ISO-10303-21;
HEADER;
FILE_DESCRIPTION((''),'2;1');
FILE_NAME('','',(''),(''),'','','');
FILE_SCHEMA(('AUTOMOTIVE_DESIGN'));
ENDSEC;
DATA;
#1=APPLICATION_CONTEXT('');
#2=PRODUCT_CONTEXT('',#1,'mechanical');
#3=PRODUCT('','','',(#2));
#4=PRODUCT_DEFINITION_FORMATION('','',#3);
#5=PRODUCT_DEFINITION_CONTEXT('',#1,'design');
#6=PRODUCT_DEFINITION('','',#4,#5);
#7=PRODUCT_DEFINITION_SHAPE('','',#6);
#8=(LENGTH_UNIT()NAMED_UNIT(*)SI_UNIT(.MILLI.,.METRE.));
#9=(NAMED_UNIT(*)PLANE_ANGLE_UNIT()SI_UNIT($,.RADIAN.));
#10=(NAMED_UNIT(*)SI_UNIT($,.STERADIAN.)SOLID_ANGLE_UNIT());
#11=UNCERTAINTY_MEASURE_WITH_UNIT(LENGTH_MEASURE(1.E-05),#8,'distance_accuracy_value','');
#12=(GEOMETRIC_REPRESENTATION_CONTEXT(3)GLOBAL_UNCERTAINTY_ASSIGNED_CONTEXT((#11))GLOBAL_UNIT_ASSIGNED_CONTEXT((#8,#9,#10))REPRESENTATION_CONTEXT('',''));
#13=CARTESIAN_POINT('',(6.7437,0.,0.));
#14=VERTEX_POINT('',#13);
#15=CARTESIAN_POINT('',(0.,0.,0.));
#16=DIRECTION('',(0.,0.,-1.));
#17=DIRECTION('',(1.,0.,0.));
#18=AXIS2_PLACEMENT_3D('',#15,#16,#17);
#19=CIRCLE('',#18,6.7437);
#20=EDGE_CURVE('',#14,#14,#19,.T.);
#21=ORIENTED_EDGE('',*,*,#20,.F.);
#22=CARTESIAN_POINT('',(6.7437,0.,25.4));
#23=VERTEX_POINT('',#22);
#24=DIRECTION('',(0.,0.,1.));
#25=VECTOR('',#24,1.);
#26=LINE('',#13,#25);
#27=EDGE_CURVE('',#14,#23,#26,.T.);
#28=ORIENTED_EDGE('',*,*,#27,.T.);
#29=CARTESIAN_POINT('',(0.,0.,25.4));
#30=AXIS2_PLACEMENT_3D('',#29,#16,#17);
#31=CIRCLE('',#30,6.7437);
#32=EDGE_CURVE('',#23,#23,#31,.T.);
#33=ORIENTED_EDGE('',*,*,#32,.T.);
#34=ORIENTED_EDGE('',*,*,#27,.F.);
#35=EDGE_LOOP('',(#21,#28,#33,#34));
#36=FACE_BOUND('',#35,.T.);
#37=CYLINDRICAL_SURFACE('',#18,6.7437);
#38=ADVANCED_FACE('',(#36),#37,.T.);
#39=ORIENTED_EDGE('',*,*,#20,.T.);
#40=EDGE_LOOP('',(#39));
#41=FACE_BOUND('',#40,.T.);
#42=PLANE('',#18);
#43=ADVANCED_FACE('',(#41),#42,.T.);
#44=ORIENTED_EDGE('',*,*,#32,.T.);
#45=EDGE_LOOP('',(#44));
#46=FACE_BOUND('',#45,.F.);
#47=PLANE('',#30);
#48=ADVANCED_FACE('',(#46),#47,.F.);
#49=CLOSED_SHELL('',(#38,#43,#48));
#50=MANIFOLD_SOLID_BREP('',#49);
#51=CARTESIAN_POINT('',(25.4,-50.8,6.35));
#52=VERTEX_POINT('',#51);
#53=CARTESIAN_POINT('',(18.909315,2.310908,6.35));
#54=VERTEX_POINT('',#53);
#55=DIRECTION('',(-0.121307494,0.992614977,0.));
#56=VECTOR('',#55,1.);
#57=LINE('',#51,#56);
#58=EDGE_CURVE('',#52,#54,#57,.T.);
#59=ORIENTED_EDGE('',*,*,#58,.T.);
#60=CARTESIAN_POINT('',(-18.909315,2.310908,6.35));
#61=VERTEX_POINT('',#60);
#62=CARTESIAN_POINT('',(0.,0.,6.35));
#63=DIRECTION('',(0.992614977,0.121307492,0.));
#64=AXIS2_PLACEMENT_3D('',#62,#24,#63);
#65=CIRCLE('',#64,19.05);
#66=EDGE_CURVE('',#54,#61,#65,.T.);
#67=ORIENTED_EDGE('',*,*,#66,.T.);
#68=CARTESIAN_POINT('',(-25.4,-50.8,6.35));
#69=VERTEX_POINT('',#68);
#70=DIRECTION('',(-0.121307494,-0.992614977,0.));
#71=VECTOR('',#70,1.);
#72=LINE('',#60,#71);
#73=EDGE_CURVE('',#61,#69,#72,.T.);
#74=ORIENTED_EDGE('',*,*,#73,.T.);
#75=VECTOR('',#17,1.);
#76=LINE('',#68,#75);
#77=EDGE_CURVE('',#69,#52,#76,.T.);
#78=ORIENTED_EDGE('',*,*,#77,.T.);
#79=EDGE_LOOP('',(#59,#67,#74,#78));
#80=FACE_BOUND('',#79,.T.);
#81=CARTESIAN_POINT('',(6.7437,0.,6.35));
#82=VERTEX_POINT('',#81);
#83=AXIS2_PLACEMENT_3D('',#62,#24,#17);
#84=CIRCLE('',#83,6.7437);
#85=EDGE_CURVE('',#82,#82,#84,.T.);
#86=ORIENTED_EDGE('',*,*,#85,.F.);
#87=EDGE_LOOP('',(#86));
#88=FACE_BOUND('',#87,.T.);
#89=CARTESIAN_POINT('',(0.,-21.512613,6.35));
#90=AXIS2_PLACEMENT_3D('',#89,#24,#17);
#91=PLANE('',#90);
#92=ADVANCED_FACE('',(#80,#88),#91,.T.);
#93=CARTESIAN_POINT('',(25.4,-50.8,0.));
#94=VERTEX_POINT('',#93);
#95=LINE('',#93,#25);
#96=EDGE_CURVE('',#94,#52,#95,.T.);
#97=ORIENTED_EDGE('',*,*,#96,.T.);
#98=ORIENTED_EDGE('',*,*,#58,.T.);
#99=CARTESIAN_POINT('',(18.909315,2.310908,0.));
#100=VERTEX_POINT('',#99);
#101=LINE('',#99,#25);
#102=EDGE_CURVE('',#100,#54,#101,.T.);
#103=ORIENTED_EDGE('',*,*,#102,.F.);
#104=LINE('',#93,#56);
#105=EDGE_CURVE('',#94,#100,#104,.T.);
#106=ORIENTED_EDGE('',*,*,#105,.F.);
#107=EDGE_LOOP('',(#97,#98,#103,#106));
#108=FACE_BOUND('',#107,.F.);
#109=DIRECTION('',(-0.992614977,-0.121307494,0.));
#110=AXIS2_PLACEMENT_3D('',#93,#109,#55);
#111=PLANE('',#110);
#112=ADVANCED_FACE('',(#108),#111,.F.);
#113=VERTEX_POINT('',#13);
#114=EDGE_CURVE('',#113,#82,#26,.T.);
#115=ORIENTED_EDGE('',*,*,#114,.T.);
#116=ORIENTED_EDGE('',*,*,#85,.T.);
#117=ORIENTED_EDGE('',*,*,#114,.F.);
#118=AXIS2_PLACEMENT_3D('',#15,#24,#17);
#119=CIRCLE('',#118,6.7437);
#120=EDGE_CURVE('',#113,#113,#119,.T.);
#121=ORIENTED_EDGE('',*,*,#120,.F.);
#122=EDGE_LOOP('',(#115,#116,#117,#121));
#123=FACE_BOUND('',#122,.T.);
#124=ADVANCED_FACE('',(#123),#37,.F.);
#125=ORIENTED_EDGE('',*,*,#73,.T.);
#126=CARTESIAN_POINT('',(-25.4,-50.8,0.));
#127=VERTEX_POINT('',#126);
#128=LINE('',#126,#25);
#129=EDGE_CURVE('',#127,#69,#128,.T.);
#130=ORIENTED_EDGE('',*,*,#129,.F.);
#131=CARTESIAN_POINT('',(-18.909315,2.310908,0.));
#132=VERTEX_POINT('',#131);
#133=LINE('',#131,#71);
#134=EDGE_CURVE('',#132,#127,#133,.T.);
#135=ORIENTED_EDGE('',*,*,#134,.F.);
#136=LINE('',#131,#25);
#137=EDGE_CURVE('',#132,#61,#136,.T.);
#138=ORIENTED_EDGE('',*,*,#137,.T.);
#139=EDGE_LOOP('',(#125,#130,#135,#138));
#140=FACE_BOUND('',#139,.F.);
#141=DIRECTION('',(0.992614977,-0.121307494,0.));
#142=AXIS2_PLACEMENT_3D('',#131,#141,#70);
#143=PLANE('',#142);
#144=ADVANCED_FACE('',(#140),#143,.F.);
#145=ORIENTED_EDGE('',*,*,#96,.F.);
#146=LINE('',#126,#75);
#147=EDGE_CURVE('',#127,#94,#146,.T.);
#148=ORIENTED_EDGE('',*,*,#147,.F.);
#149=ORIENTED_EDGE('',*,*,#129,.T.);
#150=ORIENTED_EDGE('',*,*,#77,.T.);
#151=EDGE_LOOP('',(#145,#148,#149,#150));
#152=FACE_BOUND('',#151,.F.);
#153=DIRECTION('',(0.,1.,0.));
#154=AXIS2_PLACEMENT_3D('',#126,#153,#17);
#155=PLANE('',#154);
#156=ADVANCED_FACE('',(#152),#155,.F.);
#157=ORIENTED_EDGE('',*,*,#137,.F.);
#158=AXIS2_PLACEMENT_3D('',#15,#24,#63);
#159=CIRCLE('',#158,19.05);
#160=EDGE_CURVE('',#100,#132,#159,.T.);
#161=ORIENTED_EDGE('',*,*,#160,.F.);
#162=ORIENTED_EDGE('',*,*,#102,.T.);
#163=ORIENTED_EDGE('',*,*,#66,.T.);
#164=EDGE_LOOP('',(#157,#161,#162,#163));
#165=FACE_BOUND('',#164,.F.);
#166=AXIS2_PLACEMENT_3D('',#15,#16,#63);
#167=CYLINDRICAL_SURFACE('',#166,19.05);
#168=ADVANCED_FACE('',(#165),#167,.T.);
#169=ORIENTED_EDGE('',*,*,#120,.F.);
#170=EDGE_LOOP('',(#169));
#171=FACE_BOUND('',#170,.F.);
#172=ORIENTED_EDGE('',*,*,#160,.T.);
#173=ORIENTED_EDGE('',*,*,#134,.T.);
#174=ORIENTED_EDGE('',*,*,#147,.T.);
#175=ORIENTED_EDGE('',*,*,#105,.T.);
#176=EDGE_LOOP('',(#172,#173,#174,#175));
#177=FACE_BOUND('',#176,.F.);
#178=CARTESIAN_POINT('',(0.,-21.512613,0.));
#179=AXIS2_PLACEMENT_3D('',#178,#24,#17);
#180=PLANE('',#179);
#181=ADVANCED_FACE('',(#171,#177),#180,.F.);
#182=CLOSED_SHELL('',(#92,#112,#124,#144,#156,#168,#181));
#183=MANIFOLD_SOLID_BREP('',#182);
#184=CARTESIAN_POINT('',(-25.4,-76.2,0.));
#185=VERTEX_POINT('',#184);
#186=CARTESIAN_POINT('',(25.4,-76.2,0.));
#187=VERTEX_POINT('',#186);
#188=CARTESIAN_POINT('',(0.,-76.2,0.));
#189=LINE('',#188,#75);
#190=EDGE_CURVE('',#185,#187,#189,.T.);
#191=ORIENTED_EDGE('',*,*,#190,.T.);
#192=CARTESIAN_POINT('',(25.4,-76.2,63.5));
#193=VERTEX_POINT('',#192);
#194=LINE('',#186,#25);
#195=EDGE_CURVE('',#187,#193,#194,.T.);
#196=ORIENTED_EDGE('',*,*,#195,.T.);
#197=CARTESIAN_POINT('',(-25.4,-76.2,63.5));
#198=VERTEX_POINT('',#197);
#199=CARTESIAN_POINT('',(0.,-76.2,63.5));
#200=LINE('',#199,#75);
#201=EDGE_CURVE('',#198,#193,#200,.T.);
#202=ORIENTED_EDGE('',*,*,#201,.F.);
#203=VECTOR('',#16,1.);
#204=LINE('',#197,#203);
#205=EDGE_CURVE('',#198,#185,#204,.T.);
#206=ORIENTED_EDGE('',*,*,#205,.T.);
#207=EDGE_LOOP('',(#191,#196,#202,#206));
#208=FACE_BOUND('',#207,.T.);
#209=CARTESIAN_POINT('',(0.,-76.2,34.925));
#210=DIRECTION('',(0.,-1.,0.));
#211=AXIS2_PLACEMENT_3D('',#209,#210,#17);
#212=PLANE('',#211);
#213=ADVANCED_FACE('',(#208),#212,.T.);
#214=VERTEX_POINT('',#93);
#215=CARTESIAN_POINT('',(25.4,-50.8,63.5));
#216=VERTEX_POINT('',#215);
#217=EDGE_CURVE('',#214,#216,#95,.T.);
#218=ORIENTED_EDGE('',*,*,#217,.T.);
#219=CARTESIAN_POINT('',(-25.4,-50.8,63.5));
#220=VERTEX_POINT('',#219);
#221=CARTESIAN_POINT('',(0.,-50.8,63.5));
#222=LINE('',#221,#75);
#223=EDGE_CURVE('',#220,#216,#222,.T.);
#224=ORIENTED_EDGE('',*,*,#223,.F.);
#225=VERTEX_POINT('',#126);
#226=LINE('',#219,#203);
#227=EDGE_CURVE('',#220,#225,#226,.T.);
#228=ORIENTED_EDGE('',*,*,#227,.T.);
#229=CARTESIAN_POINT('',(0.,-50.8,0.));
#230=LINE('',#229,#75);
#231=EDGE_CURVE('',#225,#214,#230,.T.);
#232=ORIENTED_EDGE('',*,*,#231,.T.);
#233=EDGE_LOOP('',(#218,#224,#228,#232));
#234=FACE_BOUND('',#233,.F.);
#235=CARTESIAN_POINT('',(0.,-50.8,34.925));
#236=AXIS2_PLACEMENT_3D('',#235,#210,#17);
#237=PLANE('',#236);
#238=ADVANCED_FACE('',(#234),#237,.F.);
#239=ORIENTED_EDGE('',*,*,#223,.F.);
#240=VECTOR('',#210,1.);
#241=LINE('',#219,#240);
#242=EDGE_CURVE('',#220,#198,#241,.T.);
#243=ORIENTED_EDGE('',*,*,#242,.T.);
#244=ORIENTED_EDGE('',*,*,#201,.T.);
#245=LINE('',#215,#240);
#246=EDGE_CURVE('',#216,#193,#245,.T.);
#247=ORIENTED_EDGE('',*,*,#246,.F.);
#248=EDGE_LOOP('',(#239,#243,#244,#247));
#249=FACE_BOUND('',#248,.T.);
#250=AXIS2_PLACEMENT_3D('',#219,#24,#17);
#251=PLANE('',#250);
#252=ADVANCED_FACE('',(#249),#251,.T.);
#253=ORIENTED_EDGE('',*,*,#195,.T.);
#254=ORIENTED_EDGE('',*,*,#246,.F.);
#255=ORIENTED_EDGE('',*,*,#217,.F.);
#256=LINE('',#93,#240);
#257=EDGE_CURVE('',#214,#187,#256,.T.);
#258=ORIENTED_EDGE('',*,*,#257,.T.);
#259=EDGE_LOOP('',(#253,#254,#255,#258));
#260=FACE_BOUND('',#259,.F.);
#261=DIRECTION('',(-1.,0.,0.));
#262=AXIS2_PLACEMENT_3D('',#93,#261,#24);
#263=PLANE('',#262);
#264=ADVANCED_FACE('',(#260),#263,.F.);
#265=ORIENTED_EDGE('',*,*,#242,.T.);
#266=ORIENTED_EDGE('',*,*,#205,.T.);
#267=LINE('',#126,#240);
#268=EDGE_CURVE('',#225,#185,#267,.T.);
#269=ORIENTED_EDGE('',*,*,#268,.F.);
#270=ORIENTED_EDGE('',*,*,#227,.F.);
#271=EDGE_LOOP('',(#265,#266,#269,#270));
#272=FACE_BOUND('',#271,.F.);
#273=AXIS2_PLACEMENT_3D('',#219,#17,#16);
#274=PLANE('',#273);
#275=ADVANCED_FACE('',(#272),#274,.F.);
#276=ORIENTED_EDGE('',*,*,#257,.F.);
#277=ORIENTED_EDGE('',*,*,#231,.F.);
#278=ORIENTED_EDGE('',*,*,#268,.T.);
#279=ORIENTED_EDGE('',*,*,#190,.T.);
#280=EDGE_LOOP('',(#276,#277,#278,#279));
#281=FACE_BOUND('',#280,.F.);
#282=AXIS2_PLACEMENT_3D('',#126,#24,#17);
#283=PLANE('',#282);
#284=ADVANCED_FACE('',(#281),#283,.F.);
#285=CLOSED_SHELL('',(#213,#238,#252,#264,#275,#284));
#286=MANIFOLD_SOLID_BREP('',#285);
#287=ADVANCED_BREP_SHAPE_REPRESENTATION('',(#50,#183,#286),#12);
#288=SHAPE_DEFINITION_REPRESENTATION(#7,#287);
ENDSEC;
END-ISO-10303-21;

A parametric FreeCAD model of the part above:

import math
import FreeCAD as App
import Part
import Sketcher
Q = App.Units.Quantity

doc = App.newDocument("Part")
params = doc.addObject("Spreadsheet::Sheet", "Params")
for row, (alias, value) in enumerate([
    ("sketch1_width", "2 in"),
    ("sketch1_radius", "0.75 in"),
    ("sketch1_diameter", "0.531 in"),
    ("pad1_length", "0.25 in"),
    ("sketch2_width", "2 in"),
    ("sketch2_height", "2.5 in"),
    ("pad2_length", "1 in"),
    ("sketch3_diameter", "0.531 in"),
    ("pad3_length", "1 in"),
], start=1):
    params.set(f"A{row}", alias)
    params.set(f"B{row}", "=" + value)
    params.setAlias(f"B{row}", alias)

body = doc.addObject("PartDesign::Body", "Body")

sketch1 = body.newObject("Sketcher::SketchObject", "Sketch")
sketch1.AttachmentSupport = (doc.getObject("XY_Plane"), [""])
sketch1.MapMode = "FlatFace"
sketch1.addGeometry([
    Part.LineSegment(App.Vector(25.4, -50.8, 0), App.Vector(18.909315, 2.310908, 0)),
    Part.ArcOfCircle(Part.Circle(App.Vector(0, 0, 0), App.Vector(0, 0, 1), 19.05), math.radians(6.967568), math.radians(173.032432)),
    Part.LineSegment(App.Vector(-18.909315, 2.310908, 0), App.Vector(-25.4, -50.8, 0)),
    Part.LineSegment(App.Vector(-25.4, -50.8, 0), App.Vector(25.4, -50.8, 0)),
    Part.Circle(App.Vector(0, 0, 0), App.Vector(0, 0, 1), 6.7437),
], False)
sketch1.addConstraint([
    Sketcher.Constraint("Tangent", 0, 2, 1, 1),
    Sketcher.Constraint("Tangent", 1, 2, 2, 1),
    Sketcher.Constraint("Coincident", 2, 2, 3, 1),
    Sketcher.Constraint("Coincident", 3, 2, 0, 1),
    Sketcher.Constraint("Horizontal", 3),
    Sketcher.Constraint("Coincident", 1, 3, -1, 1),
    Sketcher.Constraint("Coincident", 4, 3, -1, 1),
    Sketcher.Constraint("Horizontal", 0, 2, 1, 2),
    Sketcher.Constraint("DistanceX", 3, 1, 3, 2, Q("2 in")),
    Sketcher.Constraint("Radius", 1, Q("0.75 in")),
    Sketcher.Constraint("Diameter", 4, Q("0.531 in")),
    Sketcher.Constraint("DistanceY", 2, 2, -1, 1, Q("2 in")),
])
sketch1.setExpression("Constraints[8]", "Params.sketch1_width")
sketch1.setExpression("Constraints[9]", "Params.sketch1_radius")
sketch1.setExpression("Constraints[10]", "Params.sketch1_diameter")
pad1 = body.newObject("PartDesign::Pad", "Pad")
pad1.Profile = sketch1
pad1.setExpression("Length", "Params.pad1_length")
body2 = doc.addObject("PartDesign::Body", "Body001")

sketch2 = body2.newObject("Sketcher::SketchObject", "Sketch001")
sketch2.AttachmentSupport = (doc.getObject("XZ_Plane001"), [""])
sketch2.MapMode = "FlatFace"
sketch2.AttachmentOffset = App.Placement(App.Vector(0, 0, 2 * 25.4), App.Rotation())
sketch2.addGeometry([
    Part.LineSegment(App.Vector(-25.4, 63.5, 0), App.Vector(-25.4, 0, 0)),
    Part.LineSegment(App.Vector(-25.4, 0, 0), App.Vector(25.4, 0, 0)),
    Part.LineSegment(App.Vector(25.4, 0, 0), App.Vector(25.4, 63.5, 0)),
    Part.LineSegment(App.Vector(25.4, 63.5, 0), App.Vector(-25.4, 63.5, 0)),
], False)
sketch2.addConstraint([
    Sketcher.Constraint("Coincident", 0, 2, 1, 1),
    Sketcher.Constraint("Coincident", 1, 2, 2, 1),
    Sketcher.Constraint("Coincident", 2, 2, 3, 1),
    Sketcher.Constraint("Coincident", 3, 2, 0, 1),
    Sketcher.Constraint("Vertical", 0),
    Sketcher.Constraint("Horizontal", 1),
    Sketcher.Constraint("Vertical", 2),
    Sketcher.Constraint("Horizontal", 3),
    Sketcher.Constraint("Symmetric", 0, 2, 1, 2, -1, 1),
    Sketcher.Constraint("DistanceX", 1, 1, 1, 2, Q("2 in")),
    Sketcher.Constraint("DistanceY", 0, 2, 0, 1, Q("2.5 in")),
])
sketch2.setExpression("Constraints[9]", "Params.sketch2_width")
sketch2.setExpression("Constraints[10]", "Params.sketch2_height")
pad2 = body2.newObject("PartDesign::Pad", "Pad001")
pad2.Profile = sketch2
pad2.setExpression("Length", "Params.pad2_length")
body3 = doc.addObject("PartDesign::Body", "Body002")

sketch3 = body3.newObject("Sketcher::SketchObject", "Sketch002")
sketch3.AttachmentSupport = (doc.getObject("XY_Plane002"), [""])
sketch3.MapMode = "FlatFace"
sketch3.addGeometry(Part.Circle(App.Vector(0, 0, 0), App.Vector(0, 0, 1), 6.7437), False)
sketch3.addConstraint([
    Sketcher.Constraint("Coincident", 0, 3, -1, 1),
    Sketcher.Constraint("Diameter", 0, Q("0.531 in")),
])
sketch3.setExpression("Constraints[1]", "Params.sketch3_diameter")
pad3 = body3.newObject("PartDesign::Pad", "Pad002")
pad3.Profile = sketch3
pad3.setExpression("Length", "Params.pad3_length")

doc.recompute()
